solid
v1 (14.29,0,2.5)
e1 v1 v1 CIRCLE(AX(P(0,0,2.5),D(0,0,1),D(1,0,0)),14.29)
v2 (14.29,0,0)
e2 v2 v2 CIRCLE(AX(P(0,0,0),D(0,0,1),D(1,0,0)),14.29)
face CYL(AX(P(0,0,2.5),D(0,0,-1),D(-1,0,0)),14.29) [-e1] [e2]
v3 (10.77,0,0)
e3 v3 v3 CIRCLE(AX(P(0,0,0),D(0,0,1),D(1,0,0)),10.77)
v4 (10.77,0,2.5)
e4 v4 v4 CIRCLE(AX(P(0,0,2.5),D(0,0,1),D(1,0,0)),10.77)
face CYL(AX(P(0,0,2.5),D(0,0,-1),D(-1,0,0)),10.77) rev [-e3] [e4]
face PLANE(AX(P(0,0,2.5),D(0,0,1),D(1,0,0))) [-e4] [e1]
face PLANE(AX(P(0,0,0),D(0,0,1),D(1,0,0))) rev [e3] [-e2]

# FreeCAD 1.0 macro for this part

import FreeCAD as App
import Part
import Sketcher

V = App.Vector

doc = App.newDocument("Part")
params = doc.addObject("Spreadsheet::Sheet", "Params")
for row, (alias, value) in enumerate([
    ("sketch1_diameter", "28.58 mm"),
    ("sketch1_diameter2", "21.54 mm"),
    ("pad1_length", "2.5 mm"),
], start=1):
    params.set(f"A{row}", alias)
    params.set(f"B{row}", "=" + value)
    params.setAlias(f"B{row}", alias)

body = doc.addObject("PartDesign::Body", "Body")

# Sketch on XY plane
sketch1 = body.newObject("Sketcher::SketchObject", "Sketch")
sketch1.AttachmentSupport = (doc.getObject("XY_Plane"), [""])
sketch1.MapMode = "FlatFace"
sketch1.addGeometry([
    Part.Circle(V(0, 0, 0), V(0, 0, 1), 14.29),
    Part.Circle(V(0, 0, 0), V(0, 0, 1), 10.77),
], False)
sketch1.addConstraint([
    Sketcher.Constraint("Coincident", 0, 3, -1, 1),
    Sketcher.Constraint("Coincident", 1, 3, -1, 1),
    Sketcher.Constraint("Diameter", 0, 28.58),
    Sketcher.Constraint("Diameter", 1, 21.54),
])
sketch1.setExpression("Constraints[2]", "Params.sketch1_diameter")
sketch1.setExpression("Constraints[3]", "Params.sketch1_diameter2")
pad1 = body.newObject("PartDesign::Pad", "Pad")
pad1.Profile = sketch1
pad1.setExpression("Length", "Params.pad1_length")

doc.recompute()
